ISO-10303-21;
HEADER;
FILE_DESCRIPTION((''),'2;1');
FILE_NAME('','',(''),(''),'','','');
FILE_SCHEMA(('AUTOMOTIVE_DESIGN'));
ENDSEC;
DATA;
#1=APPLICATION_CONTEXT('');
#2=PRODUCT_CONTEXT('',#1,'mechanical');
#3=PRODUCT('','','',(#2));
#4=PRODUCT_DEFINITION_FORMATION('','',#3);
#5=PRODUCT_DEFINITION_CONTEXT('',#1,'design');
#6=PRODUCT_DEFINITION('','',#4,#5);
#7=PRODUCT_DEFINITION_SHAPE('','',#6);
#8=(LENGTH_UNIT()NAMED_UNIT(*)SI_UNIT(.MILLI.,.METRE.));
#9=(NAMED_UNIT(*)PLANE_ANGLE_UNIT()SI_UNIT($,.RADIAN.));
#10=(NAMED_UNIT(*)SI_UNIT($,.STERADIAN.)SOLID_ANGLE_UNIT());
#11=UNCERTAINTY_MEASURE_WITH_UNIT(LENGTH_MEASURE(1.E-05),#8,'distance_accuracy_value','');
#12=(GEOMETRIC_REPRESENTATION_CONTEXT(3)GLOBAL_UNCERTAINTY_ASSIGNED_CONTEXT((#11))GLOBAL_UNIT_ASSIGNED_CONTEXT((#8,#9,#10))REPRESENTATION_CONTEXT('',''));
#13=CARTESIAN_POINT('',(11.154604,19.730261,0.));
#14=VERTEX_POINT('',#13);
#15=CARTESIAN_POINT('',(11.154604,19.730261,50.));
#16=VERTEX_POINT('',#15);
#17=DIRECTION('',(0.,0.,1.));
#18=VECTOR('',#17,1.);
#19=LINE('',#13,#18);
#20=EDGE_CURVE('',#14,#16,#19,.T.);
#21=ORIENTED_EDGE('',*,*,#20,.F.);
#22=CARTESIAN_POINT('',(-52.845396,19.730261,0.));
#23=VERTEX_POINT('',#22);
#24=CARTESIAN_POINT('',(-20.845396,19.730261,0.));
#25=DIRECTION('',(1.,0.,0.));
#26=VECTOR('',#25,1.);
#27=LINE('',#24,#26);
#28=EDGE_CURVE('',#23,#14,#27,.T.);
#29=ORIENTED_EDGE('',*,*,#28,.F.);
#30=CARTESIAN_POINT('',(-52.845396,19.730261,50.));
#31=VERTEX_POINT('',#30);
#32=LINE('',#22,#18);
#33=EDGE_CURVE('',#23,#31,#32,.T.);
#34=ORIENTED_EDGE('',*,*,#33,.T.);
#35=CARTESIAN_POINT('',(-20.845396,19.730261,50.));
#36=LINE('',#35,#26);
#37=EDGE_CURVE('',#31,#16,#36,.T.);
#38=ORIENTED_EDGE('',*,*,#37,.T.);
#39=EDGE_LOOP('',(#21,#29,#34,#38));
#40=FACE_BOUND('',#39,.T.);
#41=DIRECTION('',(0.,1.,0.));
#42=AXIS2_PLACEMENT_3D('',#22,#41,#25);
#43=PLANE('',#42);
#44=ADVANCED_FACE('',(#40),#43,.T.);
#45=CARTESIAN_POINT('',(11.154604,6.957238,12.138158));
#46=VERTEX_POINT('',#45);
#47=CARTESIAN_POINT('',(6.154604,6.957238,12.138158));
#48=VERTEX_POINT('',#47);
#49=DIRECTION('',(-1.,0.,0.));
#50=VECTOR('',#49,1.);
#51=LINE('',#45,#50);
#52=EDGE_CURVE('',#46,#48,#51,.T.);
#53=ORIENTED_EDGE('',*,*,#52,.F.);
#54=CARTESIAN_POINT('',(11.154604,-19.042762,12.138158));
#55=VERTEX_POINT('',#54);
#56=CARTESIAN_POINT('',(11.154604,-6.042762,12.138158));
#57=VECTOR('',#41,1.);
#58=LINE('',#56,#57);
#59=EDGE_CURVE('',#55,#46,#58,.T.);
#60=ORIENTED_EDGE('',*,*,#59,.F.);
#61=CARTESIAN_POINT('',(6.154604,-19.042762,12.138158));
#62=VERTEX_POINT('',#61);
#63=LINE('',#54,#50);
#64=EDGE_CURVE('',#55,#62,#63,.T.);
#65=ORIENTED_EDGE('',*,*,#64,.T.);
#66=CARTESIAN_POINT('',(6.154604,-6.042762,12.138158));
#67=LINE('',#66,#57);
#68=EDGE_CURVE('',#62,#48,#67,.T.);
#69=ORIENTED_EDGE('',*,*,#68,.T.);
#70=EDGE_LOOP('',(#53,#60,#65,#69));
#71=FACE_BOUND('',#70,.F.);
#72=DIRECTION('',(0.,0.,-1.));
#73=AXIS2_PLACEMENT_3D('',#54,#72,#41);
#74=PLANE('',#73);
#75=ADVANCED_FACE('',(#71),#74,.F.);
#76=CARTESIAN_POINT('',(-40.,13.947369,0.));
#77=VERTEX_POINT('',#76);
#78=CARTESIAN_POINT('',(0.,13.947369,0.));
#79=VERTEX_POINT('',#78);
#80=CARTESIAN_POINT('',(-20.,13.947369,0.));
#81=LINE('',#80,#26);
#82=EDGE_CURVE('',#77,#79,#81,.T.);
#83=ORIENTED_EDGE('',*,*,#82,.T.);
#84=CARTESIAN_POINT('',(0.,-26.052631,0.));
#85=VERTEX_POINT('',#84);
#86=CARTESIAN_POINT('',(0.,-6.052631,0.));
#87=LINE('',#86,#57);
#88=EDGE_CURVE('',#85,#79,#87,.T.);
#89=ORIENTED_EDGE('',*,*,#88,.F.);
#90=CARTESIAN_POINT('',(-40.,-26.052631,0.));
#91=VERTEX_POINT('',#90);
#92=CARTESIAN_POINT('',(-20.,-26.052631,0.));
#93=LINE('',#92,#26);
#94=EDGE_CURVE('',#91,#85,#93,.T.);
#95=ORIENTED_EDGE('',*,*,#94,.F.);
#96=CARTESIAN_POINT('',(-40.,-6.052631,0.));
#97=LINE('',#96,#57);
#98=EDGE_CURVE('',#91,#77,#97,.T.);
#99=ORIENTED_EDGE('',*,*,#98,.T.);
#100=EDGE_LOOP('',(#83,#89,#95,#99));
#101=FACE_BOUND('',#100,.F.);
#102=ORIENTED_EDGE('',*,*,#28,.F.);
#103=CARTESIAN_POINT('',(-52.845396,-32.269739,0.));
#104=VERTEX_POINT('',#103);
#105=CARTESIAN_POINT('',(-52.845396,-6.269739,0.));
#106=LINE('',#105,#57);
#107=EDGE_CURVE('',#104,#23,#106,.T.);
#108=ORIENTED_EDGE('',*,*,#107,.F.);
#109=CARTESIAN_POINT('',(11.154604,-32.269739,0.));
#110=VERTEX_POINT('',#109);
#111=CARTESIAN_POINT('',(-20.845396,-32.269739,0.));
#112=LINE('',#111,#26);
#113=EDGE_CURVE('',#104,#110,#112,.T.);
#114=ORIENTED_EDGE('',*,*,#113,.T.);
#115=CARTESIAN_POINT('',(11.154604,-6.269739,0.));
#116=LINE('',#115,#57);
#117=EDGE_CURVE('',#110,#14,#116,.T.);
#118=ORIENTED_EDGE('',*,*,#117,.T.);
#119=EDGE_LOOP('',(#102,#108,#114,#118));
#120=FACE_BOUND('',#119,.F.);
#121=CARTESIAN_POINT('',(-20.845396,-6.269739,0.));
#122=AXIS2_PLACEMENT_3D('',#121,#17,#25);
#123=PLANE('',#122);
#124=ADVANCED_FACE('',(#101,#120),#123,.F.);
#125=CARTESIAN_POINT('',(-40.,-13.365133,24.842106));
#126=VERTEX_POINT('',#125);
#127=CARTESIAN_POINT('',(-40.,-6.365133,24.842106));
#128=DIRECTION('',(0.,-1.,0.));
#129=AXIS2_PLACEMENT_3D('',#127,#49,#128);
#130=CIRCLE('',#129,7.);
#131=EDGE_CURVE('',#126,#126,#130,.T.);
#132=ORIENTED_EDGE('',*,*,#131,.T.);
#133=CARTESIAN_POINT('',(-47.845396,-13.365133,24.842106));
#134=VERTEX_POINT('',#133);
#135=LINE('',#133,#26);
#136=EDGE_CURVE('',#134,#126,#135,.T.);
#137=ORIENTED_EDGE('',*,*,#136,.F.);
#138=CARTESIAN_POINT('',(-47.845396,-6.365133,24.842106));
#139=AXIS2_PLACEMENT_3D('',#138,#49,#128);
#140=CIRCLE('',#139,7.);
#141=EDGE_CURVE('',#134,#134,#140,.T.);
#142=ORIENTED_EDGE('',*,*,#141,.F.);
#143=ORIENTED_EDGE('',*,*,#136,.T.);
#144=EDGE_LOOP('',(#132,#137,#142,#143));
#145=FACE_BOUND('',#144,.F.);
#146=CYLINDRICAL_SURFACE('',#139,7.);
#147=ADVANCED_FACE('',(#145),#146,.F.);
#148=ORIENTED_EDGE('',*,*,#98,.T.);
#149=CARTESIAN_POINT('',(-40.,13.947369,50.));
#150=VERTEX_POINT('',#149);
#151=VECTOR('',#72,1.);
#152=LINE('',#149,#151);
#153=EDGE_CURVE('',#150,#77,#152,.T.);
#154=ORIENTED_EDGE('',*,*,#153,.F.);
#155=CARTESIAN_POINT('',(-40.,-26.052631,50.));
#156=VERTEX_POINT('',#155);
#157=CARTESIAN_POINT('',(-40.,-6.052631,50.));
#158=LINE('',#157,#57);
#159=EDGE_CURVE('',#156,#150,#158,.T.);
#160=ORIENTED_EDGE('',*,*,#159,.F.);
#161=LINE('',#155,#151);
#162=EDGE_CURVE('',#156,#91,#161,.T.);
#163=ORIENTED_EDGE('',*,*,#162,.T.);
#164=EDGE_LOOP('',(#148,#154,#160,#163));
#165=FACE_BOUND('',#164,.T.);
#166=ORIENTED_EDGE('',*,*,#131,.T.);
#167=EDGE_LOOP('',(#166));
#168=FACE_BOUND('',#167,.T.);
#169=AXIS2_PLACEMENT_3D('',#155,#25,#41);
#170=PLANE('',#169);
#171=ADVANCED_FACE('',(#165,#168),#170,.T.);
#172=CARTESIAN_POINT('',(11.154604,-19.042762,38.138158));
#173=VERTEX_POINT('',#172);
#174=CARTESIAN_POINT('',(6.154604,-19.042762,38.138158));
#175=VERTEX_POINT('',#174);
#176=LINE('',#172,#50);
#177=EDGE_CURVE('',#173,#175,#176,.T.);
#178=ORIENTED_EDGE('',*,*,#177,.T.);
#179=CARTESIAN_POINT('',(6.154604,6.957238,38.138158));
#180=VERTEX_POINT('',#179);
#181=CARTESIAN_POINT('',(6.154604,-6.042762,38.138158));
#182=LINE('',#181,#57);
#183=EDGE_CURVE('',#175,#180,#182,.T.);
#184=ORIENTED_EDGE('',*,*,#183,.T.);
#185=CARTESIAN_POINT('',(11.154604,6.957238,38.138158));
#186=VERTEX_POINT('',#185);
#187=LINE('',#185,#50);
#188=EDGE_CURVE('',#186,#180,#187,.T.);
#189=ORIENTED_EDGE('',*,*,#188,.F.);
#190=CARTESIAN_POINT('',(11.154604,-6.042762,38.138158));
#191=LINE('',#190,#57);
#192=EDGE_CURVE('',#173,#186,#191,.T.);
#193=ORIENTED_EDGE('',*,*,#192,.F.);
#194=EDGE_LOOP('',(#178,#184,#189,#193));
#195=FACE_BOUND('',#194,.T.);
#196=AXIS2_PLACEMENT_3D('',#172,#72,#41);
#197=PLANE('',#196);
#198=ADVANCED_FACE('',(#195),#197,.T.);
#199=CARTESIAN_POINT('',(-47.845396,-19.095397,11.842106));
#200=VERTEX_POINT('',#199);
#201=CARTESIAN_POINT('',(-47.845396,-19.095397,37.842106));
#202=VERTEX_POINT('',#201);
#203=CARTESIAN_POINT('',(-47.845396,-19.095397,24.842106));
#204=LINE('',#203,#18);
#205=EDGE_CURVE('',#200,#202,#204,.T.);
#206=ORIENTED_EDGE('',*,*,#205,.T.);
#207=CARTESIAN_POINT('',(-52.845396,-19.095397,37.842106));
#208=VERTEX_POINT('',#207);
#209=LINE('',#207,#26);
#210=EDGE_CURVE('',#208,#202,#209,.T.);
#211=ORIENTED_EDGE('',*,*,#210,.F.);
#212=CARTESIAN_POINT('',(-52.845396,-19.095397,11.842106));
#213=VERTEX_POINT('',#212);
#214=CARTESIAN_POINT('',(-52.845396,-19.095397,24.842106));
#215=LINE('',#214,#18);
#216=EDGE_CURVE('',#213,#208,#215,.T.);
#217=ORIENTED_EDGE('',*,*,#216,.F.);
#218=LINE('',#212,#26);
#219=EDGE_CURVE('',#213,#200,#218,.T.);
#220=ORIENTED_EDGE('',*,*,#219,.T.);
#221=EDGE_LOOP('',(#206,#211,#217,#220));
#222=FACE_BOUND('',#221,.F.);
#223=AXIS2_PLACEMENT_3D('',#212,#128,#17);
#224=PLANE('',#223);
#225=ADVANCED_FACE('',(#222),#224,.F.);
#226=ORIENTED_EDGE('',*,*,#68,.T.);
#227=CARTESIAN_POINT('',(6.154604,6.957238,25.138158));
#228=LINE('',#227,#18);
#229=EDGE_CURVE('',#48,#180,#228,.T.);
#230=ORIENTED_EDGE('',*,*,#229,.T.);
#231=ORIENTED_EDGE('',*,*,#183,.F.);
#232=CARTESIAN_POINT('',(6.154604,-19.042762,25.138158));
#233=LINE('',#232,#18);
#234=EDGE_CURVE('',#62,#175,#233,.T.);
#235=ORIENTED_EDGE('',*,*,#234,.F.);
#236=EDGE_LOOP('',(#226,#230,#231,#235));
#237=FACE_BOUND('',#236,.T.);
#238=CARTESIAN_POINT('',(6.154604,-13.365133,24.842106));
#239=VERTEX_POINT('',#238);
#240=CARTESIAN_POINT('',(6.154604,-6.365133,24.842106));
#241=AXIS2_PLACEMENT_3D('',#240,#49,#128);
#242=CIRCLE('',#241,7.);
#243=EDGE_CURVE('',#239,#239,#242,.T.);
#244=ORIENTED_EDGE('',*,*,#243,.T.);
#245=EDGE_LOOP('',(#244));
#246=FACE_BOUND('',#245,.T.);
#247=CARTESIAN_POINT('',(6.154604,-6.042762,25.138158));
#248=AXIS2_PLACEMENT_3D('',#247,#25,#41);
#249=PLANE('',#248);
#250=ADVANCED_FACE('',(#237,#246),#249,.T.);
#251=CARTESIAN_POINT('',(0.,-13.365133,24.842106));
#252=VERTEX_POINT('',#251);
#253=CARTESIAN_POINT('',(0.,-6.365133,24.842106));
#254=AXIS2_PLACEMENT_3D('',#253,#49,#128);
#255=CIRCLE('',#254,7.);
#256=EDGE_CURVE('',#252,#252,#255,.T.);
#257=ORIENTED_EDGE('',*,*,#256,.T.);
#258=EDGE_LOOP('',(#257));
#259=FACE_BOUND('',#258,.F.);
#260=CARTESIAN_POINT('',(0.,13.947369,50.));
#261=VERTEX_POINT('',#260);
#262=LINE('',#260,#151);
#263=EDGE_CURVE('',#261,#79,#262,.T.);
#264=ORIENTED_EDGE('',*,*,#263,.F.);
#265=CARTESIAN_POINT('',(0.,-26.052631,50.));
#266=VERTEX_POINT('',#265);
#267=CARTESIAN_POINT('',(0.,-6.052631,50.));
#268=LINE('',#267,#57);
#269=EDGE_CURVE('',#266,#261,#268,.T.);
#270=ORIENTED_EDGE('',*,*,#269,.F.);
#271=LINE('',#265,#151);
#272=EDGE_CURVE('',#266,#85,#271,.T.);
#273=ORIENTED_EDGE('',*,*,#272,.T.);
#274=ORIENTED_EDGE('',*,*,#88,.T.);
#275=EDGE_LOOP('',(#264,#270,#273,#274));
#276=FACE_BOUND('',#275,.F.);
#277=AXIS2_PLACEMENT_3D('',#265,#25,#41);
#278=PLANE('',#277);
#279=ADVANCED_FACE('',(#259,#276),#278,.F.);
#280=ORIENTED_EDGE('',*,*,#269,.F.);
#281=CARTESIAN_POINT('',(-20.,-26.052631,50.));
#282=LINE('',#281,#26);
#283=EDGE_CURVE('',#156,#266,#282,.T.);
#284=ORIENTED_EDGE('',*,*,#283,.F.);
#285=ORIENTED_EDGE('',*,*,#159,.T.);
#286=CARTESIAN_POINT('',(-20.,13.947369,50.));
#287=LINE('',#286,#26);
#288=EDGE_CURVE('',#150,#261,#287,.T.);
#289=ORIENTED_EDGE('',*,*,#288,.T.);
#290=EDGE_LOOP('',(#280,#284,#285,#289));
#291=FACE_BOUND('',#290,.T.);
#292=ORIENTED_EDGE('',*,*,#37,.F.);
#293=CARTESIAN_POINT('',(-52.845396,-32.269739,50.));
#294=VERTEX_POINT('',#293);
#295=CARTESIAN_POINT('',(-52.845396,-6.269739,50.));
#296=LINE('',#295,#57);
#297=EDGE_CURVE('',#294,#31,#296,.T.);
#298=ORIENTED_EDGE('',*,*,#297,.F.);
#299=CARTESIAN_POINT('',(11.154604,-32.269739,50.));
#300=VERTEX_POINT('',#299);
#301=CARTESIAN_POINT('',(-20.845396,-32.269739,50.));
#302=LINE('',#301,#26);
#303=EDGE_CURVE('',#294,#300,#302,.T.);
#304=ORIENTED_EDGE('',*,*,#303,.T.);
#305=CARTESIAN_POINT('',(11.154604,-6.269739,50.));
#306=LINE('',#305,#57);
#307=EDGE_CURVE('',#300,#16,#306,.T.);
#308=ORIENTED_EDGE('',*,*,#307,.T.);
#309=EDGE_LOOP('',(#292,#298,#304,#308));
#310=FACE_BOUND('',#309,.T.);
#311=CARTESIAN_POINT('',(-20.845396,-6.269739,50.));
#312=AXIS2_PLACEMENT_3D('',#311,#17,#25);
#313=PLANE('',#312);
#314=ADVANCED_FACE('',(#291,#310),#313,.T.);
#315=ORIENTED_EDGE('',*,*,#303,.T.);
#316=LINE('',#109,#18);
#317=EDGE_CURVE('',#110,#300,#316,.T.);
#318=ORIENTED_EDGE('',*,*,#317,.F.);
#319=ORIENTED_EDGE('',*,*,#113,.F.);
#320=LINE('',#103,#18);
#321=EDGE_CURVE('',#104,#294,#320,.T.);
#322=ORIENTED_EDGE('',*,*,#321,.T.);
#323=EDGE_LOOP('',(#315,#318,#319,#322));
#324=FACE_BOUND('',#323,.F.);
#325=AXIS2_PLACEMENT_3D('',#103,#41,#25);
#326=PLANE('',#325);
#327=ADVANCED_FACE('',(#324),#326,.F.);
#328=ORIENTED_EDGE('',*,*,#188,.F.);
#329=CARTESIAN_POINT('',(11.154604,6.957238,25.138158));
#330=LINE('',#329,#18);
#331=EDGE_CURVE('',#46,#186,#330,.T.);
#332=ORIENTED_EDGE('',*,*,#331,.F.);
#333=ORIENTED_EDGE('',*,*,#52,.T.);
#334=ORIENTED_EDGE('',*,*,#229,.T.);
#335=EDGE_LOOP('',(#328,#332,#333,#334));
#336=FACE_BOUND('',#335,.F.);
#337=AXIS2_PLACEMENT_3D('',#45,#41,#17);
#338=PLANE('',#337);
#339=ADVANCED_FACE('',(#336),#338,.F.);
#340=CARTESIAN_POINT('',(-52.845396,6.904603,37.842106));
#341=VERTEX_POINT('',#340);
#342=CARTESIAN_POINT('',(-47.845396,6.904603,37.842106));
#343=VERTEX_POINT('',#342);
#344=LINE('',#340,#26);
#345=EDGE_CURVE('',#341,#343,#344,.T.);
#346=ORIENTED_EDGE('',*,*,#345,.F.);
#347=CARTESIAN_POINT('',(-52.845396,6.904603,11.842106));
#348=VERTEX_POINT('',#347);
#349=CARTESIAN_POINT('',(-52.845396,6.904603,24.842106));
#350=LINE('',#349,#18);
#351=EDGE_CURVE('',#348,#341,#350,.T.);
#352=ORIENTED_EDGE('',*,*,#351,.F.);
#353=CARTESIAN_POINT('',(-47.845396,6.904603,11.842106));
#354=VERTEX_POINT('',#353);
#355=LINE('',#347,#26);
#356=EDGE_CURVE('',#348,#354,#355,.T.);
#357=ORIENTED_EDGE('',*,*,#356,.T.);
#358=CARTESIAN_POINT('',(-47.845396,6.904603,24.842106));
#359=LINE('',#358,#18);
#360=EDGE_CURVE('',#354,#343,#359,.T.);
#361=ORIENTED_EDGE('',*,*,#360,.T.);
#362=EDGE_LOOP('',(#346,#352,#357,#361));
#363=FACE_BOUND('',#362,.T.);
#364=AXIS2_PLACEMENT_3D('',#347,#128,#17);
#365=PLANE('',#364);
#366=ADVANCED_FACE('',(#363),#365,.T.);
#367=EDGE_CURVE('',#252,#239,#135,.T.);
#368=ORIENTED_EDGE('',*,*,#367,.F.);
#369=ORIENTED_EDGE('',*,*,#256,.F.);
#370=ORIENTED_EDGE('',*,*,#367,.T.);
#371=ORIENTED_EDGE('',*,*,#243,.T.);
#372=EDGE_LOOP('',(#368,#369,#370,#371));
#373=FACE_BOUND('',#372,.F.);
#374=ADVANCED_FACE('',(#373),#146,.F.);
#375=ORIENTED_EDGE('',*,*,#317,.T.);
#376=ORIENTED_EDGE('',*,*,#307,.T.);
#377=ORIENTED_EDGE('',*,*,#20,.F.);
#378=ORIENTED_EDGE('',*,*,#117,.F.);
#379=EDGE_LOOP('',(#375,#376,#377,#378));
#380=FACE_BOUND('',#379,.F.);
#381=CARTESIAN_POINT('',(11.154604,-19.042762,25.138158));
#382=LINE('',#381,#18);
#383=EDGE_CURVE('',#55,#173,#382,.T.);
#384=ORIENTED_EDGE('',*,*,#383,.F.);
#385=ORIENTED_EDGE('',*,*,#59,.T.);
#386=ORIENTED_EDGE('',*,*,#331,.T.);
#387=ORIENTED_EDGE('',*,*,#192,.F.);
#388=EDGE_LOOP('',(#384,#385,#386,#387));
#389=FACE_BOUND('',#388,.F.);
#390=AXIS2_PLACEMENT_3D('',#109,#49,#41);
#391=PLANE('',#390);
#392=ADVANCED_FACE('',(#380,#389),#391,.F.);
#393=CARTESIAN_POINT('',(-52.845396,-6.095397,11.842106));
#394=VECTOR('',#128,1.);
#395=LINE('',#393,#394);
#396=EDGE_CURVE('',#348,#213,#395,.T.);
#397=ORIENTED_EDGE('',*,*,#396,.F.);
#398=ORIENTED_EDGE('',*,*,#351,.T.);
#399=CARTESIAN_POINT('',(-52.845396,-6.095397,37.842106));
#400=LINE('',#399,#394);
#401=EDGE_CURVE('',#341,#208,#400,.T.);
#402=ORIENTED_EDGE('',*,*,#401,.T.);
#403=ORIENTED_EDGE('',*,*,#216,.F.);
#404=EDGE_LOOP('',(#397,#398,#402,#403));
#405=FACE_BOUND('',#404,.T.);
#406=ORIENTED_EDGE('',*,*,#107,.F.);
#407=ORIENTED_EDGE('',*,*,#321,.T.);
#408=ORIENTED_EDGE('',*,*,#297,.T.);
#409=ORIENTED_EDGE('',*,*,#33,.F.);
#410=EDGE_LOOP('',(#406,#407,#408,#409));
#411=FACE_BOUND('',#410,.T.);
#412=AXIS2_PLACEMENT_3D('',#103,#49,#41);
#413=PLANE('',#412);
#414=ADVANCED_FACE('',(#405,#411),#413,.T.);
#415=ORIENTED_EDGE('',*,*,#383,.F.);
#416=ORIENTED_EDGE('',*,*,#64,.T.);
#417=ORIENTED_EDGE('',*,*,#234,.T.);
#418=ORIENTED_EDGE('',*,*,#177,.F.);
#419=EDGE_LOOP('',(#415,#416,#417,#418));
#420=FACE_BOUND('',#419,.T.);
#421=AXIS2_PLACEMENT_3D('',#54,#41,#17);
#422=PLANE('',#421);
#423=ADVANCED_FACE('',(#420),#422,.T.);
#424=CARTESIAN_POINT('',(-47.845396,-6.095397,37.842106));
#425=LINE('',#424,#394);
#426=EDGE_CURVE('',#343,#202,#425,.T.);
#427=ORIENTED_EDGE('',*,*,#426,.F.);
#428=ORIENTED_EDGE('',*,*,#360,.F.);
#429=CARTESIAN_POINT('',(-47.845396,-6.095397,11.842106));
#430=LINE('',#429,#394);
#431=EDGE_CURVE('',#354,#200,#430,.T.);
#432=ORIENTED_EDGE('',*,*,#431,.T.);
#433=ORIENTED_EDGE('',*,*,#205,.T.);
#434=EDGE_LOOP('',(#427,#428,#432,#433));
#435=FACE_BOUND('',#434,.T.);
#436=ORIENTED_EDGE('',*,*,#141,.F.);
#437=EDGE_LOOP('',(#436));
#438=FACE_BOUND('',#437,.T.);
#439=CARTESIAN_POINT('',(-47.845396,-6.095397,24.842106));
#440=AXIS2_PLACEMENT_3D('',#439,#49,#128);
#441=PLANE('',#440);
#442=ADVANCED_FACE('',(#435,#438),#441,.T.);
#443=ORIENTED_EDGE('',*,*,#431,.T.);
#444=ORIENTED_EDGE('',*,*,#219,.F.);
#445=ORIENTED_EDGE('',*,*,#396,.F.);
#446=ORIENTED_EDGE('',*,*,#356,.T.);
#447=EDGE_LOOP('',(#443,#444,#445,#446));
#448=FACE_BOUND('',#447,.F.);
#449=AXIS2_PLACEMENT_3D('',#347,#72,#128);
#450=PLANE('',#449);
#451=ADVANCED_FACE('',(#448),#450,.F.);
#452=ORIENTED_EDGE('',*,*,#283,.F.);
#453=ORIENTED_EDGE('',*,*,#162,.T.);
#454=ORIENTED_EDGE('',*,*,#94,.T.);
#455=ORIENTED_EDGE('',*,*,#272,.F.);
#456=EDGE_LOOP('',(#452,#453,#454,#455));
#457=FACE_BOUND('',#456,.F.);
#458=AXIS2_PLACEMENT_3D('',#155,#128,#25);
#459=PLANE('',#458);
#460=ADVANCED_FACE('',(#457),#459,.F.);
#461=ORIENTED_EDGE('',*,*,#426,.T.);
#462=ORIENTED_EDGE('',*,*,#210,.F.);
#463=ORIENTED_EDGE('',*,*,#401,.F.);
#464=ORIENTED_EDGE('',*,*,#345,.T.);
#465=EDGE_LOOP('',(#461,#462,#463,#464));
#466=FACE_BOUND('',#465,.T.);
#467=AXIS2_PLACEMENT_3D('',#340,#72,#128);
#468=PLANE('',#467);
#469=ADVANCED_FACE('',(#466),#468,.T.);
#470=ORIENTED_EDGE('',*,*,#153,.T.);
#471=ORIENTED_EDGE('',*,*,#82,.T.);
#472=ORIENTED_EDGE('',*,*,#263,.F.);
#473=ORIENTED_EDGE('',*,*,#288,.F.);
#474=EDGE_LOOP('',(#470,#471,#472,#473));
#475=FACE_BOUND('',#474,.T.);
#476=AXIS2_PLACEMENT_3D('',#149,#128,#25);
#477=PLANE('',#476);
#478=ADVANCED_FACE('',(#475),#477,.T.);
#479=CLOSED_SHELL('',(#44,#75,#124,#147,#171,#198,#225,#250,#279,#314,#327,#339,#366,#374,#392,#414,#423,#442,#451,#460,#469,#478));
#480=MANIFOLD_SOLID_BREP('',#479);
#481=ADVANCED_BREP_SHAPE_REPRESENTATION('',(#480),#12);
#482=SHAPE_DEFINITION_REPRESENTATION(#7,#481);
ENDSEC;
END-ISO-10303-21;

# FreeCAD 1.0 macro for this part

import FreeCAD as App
import Part
import Sketcher
from FreeCAD import Vector


def add_polygon(sketch, points):
    """Adds a closed chain of lines whose ends are joined by coincident constraints."""
    first, n = sketch.GeometryCount, len(points)
    for a, b in zip(points, points[1:] + points[:1]):
        sketch.addGeometry(Part.LineSegment(App.Vector(*a, 0), App.Vector(*b, 0)), False)
    for i in range(n):
        sketch.addConstraint(Sketcher.Constraint("Coincident", first + i, 2, first + (i + 1) % n, 1))

doc = App.newDocument("Part")
body = doc.addObject("PartDesign::Body", "Body")

# Sketch on XY plane
sketch1 = body.newObject("Sketcher::SketchObject", "Sketch")
sketch1.AttachmentSupport = (doc.getObject("XY_Plane"), [""])
sketch1.MapMode = "FlatFace"
add_polygon(sketch1, [(-53, 20), (-53, -32), (11, -32), (11, 20)])  # lines 0-3
sketch1.addConstraint([
    Sketcher.Constraint("Vertical", 0),
    Sketcher.Constraint("Horizontal", 1),
    Sketcher.Constraint("Vertical", 2),
    Sketcher.Constraint("Horizontal", 3),
    Sketcher.Constraint("DistanceX", 1, 1, 1, 2, 64.0),
    Sketcher.Constraint("DistanceY", 0, 2, 0, 1, 52.0),
    Sketcher.Constraint("DistanceY", 0, 2, -1, 1, 32.269739),
    Sketcher.Constraint("DistanceX", 0, 2, -1, 1, 52.845396),
])
pad1 = body.newObject("PartDesign::Pad", "Pad")
pad1.Profile = sketch1
pad1.Length = 50

# Sketch on XY plane
sketch2 = body.newObject("Sketcher::SketchObject", "Sketch001")
sketch2.AttachmentSupport = (doc.getObject("XY_Plane"), [""])
sketch2.MapMode = "FlatFace"
sketch2.AttachmentOffset = App.Placement(Vector(0, 0, 50), App.Rotation())
add_polygon(sketch2, [(-40, 14), (-40, -26), (0, -26), (0, 14)])  # lines 0-3
sketch2.addConstraint([
    Sketcher.Constraint("Vertical", 0),
    Sketcher.Constraint("Horizontal", 1),
    Sketcher.Constraint("Vertical", 2),
    Sketcher.Constraint("Horizontal", 3),
    Sketcher.Constraint("PointOnObject", 1, 2, -2),
    Sketcher.Constraint("Equal", 3, 0),
    Sketcher.Constraint("DistanceX", 1, 1, 1, 2, 40.0),
    Sketcher.Constraint("DistanceY", 0, 2, -1, 1, 26.052631),
])
pocket1 = body.newObject("PartDesign::Pocket", "Pocket")
pocket1.Profile = sketch2
pocket1.Length = 50

# Sketch on YZ plane
sketch3 = body.newObject("Sketcher::SketchObject", "Sketch002")
sketch3.AttachmentSupport = (doc.getObject("YZ_Plane"), [""])
sketch3.MapMode = "FlatFace"
sketch3.AttachmentOffset = App.Placement(Vector(0, 0, 11.154604), App.Rotation())
add_polygon(sketch3, [(-19, 38), (-19, 12), (7, 12), (7, 38)])  # lines 0-3
sketch3.addConstraint([
    Sketcher.Constraint("Vertical", 0),
    Sketcher.Constraint("Horizontal", 1),
    Sketcher.Constraint("Vertical", 2),
    Sketcher.Constraint("Horizontal", 3),
    Sketcher.Constraint("Equal", 3, 0),
    Sketcher.Constraint("DistanceX", 1, 1, 1, 2, 26.0),
    Sketcher.Constraint("DistanceX", 0, 2, -1, 1, 19.042762),
    Sketcher.Constraint("DistanceY", -1, 1, 0, 2, 12.138158),
])
pocket2 = body.newObject("PartDesign::Pocket", "Pocket001")
pocket2.Profile = sketch3
pocket2.Length = 5

# Sketch on YZ plane
sketch4 = body.newObject("Sketcher::SketchObject", "Sketch003")
sketch4.AttachmentSupport = (doc.getObject("YZ_Plane"), [""])
sketch4.MapMode = "FlatFace"
sketch4.AttachmentOffset = App.Placement(Vector(0, 0, -52.845396), App.Rotation())
add_polygon(sketch4, [(7, 38), (7, 12), (-19, 12), (-19, 38)])  # lines 0-3
sketch4.addConstraint([
    Sketcher.Constraint("Vertical", 0),
    Sketcher.Constraint("Horizontal", 1),
    Sketcher.Constraint("Vertical", 2),
    Sketcher.Constraint("Horizontal", 3),
    Sketcher.Constraint("Equal", 3, 0),
    Sketcher.Constraint("DistanceX", 1, 2, 1, 1, 26.0),
    Sketcher.Constraint("DistanceX", -1, 1, 0, 2, 6.904603),
    Sketcher.Constraint("DistanceY", -1, 1, 0, 2, 11.842106),
])
pocket3 = body.newObject("PartDesign::Pocket", "Pocket002")
pocket3.Profile = sketch4
pocket3.Length = 5
pocket3.Reversed = True

# Sketch on YZ plane
sketch5 = body.newObject("Sketcher::SketchObject", "Sketch004")
sketch5.AttachmentSupport = (doc.getObject("YZ_Plane"), [""])
sketch5.MapMode = "FlatFace"
sketch5.AttachmentOffset = App.Placement(Vector(0, 0, -47.845396), App.Rotation())
sketch5.addGeometry(Part.Circle(Vector(-6, 25, 0), Vector(0, 0, 1), 7), False)
sketch5.addConstraint([
    Sketcher.Constraint("Diameter", 0, 14.0),
    Sketcher.Constraint("DistanceX", 0, 3, -1, 1, 6.365133),
    Sketcher.Constraint("DistanceY", -1, 1, 0, 3, 24.842106),
])
pocket4 = body.newObject("PartDesign::Pocket", "Pocket003")
pocket4.Profile = sketch5
pocket4.Length = 64
pocket4.Reversed = True

doc.recompute()
